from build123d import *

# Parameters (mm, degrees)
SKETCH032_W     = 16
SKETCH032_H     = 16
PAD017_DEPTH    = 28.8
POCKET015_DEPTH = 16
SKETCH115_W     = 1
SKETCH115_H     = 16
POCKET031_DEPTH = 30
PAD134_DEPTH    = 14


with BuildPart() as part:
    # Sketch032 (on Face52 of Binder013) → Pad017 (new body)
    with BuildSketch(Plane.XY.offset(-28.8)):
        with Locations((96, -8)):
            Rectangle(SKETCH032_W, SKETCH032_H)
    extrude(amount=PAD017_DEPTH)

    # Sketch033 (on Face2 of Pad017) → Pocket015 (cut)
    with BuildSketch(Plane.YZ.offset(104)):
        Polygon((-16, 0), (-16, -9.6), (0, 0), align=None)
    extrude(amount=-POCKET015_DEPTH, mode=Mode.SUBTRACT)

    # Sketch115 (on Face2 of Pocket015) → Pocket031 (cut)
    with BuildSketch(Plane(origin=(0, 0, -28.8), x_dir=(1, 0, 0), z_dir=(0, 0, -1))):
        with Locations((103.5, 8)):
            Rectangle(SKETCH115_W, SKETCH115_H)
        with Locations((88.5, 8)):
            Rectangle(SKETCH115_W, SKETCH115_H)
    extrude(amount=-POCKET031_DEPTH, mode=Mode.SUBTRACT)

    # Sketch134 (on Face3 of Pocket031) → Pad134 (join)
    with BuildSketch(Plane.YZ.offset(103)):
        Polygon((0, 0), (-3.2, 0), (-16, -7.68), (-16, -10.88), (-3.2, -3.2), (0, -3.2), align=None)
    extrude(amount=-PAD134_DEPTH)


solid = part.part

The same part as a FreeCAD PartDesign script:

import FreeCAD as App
import Part
import Sketcher

doc = App.newDocument("Part")
body = doc.addObject("PartDesign::Body", "Body")

sketch1 = doc.addObject("Sketcher::SketchObject", "Sketch")
body.addObject(sketch1)
sketch1.AttachmentSupport = (doc.XY_Plane, [""])
sketch1.MapMode = "FlatFace"
sketch1.AttachmentOffset = App.Placement(App.Vector(0, 0, -28.8), App.Rotation())
sketch1.addGeometry([
    Part.LineSegment(App.Vector(88, 0, 0), App.Vector(88, -16, 0)),
    Part.LineSegment(App.Vector(88, -16, 0), App.Vector(104, -16, 0)),
    Part.LineSegment(App.Vector(104, -16, 0), App.Vector(104, 0, 0)),
    Part.LineSegment(App.Vector(104, 0, 0), App.Vector(88, 0, 0)),
], False)
sketch1.addConstraint([
    Sketcher.Constraint("Coincident", 0, 2, 1, 1),
    Sketcher.Constraint("Coincident", 1, 2, 2, 1),
    Sketcher.Constraint("Coincident", 2, 2, 3, 1),
    Sketcher.Constraint("Coincident", 3, 2, 0, 1),
    Sketcher.Constraint("Vertical", 0),
    Sketcher.Constraint("Horizontal", 1),
    Sketcher.Constraint("Vertical", 2),
    Sketcher.Constraint("Horizontal", 3),
    Sketcher.Constraint("PointOnObject", 2, 2, -1),
    Sketcher.Constraint("Equal", 3, 0),
    Sketcher.Constraint("DistanceX", 1, 1, 1, 2, 16.0),
    Sketcher.Constraint("DistanceX", -1, 1, 0, 2, 88.0),
])
pad1 = doc.addObject("PartDesign::Pad", "Pad")
body.addObject(pad1)
pad1.Profile = sketch1
pad1.Length = 28.8

sketch2 = doc.addObject("Sketcher::SketchObject", "Sketch001")
body.addObject(sketch2)
sketch2.AttachmentSupport = (doc.YZ_Plane, [""])
sketch2.MapMode = "FlatFace"
sketch2.AttachmentOffset = App.Placement(App.Vector(0, 0, 104), App.Rotation())
sketch2.addGeometry([
    Part.LineSegment(App.Vector(-16, 0, 0), App.Vector(-16, -10, 0)),
    Part.LineSegment(App.Vector(-16, -10, 0), App.Vector(0, 0, 0)),
    Part.LineSegment(App.Vector(0, 0, 0), App.Vector(-16, 0, 0)),
], False)
sketch2.addConstraint([
    Sketcher.Constraint("Coincident", 0, 2, 1, 1),
    Sketcher.Constraint("Coincident", 1, 2, 2, 1),
    Sketcher.Constraint("Coincident", 2, 2, 0, 1),
    Sketcher.Constraint("Vertical", 0),
    Sketcher.Constraint("Horizontal", 2),
    Sketcher.Constraint("Coincident", 1, 2, -1, 1),
    Sketcher.Constraint("DistanceX", 2, 2, 2, 1, 16.0),
    Sketcher.Constraint("DistanceY", 0, 2, 0, 1, 9.6),
])
pocket1 = doc.addObject("PartDesign::Pocket", "Pocket")
body.addObject(pocket1)
pocket1.Profile = sketch2
pocket1.Length = 16

sketch3 = doc.addObject("Sketcher::SketchObject", "Sketch002")
body.addObject(sketch3)
sketch3.AttachmentSupport = (doc.XY_Plane, [""])
sketch3.MapMode = "FlatFace"
sketch3.AttachmentOffset = App.Placement(App.Vector(0, 0, -28.8), App.Rotation())
sketch3.addGeometry([
    Part.LineSegment(App.Vector(103, -16, 0), App.Vector(103, 0, 0)),
    Part.LineSegment(App.Vector(103, 0, 0), App.Vector(104, 0, 0)),
    Part.LineSegment(App.Vector(104, 0, 0), App.Vector(104, -16, 0)),
    Part.LineSegment(App.Vector(104, -16, 0), App.Vector(103, -16, 0)),
    Part.LineSegment(App.Vector(88, -16, 0), App.Vector(88, 0, 0)),
    Part.LineSegment(App.Vector(88, 0, 0), App.Vector(89, 0, 0)),
    Part.LineSegment(App.Vector(89, 0, 0), App.Vector(89, -16, 0)),
    Part.LineSegment(App.Vector(89, -16, 0), App.Vector(88, -16, 0)),
], False)
sketch3.addConstraint([
    Sketcher.Constraint("Coincident", 0, 2, 1, 1),
    Sketcher.Constraint("Coincident", 1, 2, 2, 1),
    Sketcher.Constraint("Coincident", 2, 2, 3, 1),
    Sketcher.Constraint("Coincident", 3, 2, 0, 1),
    Sketcher.Constraint("Coincident", 4, 2, 5, 1),
    Sketcher.Constraint("Coincident", 5, 2, 6, 1),
    Sketcher.Constraint("Coincident", 6, 2, 7, 1),
    Sketcher.Constraint("Coincident", 7, 2, 4, 1),
    Sketcher.Constraint("Vertical", 0),
    Sketcher.Constraint("Horizontal", 1),
    Sketcher.Constraint("Vertical", 2),
    Sketcher.Constraint("Horizontal", 3),
    Sketcher.Constraint("Vertical", 4),
    Sketcher.Constraint("Horizontal", 5),
    Sketcher.Constraint("Vertical", 6),
    Sketcher.Constraint("Horizontal", 7),
    Sketcher.Constraint("PointOnObject", 0, 2, -1),
    Sketcher.Constraint("PointOnObject", 4, 2, -1),
    Sketcher.Constraint("Horizontal", 3, 2, 6, 2),
    Sketcher.Constraint("Equal", 3, 5),
    Sketcher.Constraint("DistanceX", 1, 1, 1, 2, 1.0),
    Sketcher.Constraint("DistanceY", 0, 1, 0, 2, 16.0),
    Sketcher.Constraint("DistanceX", -1, 1, 0, 2, 103.0),
    Sketcher.Constraint("DistanceX", -1, 1, 4, 2, 88.0),
])
pocket2 = doc.addObject("PartDesign::Pocket", "Pocket001")
body.addObject(pocket2)
pocket2.Profile = sketch3
pocket2.Length = 30
pocket2.Reversed = True

sketch4 = doc.addObject("Sketcher::SketchObject", "Sketch003")
body.addObject(sketch4)
sketch4.AttachmentSupport = (doc.YZ_Plane, [""])
sketch4.MapMode = "FlatFace"
sketch4.AttachmentOffset = App.Placement(App.Vector(0, 0, 103), App.Rotation())
sketch4.addGeometry([
    Part.LineSegment(App.Vector(0, 0, 0), App.Vector(-3.2, 0, 0)),
    Part.LineSegment(App.Vector(-3.2, 0, 0), App.Vector(-16, -7.7, 0)),
    Part.LineSegment(App.Vector(-16, -7.7, 0), App.Vector(-16, -10.9, 0)),
    Part.LineSegment(App.Vector(-16, -10.9, 0), App.Vector(-3.2, -3.2, 0)),
    Part.LineSegment(App.Vector(-3.2, -3.2, 0), App.Vector(0, -3.2, 0)),
    Part.LineSegment(App.Vector(0, -3.2, 0), App.Vector(0, 0, 0)),
], False)
sketch4.addConstraint([
    Sketcher.Constraint("Coincident", 0, 2, 1, 1),
    Sketcher.Constraint("Coincident", 1, 2, 2, 1),
    Sketcher.Constraint("Coincident", 2, 2, 3, 1),
    Sketcher.Constraint("Coincident", 3, 2, 4, 1),
    Sketcher.Constraint("Coincident", 4, 2, 5, 1),
    Sketcher.Constraint("Coincident", 5, 2, 0, 1),
    Sketcher.Constraint("Horizontal", 0),
    Sketcher.Constraint("Vertical", 2),
    Sketcher.Constraint("Horizontal", 4),
    Sketcher.Constraint("Vertical", 5),
    Sketcher.Constraint("Coincident", 5, 2, -1, 1),
    Sketcher.Constraint("Parallel", 1, 3),
    Sketcher.Constraint("Vertical", 0, 2, 3, 2),
    Sketcher.Constraint("Equal", 4, 2),
    Sketcher.Constraint("DistanceX", 0, 2, 0, 1, 3.2),
    Sketcher.Constraint("DistanceX", 1, 2, -1, 1, 16.0),
    Sketcher.Constraint("DistanceY", 1, 2, -1, 1, 7.68),
])
pad2 = doc.addObject("PartDesign::Pad", "Pad001")
body.addObject(pad2)
pad2.Profile = sketch4
pad2.Length = 14
pad2.Reversed = True

doc.recompute()
